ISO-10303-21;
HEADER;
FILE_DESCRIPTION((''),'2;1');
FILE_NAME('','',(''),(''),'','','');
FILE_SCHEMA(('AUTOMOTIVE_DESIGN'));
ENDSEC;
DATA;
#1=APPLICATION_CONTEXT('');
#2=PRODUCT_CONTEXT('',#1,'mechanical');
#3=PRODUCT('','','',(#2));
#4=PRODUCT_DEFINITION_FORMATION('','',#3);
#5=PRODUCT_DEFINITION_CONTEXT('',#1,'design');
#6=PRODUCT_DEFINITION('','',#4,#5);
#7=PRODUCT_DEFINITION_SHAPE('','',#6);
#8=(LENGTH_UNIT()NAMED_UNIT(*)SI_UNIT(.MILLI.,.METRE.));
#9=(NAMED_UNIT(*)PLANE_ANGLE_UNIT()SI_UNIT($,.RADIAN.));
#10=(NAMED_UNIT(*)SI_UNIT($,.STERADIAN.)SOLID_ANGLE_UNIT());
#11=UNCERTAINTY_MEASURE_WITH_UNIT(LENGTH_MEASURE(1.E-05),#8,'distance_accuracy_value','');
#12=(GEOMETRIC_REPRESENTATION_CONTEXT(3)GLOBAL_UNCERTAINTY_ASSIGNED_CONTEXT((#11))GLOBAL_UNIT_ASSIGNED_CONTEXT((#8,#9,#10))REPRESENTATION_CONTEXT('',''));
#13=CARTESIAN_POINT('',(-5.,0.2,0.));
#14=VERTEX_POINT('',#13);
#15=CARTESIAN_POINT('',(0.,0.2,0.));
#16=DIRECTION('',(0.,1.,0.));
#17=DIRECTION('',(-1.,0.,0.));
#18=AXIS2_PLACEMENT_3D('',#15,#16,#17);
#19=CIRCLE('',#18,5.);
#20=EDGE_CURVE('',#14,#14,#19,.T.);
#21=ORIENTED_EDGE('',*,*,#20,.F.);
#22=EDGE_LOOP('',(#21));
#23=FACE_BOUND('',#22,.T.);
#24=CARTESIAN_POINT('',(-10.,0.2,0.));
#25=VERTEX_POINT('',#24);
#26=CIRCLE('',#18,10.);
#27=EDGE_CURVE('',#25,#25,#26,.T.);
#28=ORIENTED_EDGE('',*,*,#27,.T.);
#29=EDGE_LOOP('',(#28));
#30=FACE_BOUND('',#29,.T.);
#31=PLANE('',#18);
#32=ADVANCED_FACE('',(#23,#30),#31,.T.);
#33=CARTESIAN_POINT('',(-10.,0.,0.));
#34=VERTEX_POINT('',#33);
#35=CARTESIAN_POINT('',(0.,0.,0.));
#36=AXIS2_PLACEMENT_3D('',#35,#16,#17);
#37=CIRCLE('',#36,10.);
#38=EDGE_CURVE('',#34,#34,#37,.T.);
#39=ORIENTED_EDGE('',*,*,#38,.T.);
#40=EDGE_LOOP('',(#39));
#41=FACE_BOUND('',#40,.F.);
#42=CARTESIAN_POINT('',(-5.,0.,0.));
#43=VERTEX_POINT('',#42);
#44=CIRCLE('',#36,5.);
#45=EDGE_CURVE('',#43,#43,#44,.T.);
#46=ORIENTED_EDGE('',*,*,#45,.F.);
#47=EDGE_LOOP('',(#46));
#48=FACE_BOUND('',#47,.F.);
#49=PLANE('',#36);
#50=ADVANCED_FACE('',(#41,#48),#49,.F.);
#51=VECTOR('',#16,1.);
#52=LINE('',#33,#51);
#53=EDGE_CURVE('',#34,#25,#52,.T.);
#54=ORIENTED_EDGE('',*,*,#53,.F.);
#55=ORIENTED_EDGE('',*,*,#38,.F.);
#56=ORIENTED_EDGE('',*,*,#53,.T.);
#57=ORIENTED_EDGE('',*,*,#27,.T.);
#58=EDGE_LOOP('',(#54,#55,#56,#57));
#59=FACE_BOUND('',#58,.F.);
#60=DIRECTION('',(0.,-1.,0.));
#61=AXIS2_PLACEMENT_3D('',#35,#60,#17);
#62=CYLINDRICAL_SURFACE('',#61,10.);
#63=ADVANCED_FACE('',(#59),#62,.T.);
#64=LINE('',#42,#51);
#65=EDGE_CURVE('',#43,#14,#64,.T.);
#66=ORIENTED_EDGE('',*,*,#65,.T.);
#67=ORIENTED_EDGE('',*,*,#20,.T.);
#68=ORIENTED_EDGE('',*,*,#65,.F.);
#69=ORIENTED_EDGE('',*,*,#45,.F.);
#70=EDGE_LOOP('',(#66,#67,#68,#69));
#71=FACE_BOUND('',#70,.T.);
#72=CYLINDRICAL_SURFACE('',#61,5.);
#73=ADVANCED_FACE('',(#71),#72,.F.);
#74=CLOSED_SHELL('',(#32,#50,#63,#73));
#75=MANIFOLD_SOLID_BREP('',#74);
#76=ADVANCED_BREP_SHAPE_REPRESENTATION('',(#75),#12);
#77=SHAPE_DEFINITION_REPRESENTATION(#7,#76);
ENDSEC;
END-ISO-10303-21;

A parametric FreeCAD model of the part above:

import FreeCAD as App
import Part
import Sketcher

doc = App.newDocument("Part")
body = doc.addObject("PartDesign::Body", "Body")

sketch1 = doc.addObject("Sketcher::SketchObject", "Sketch")
body.addObject(sketch1)
sketch1.AttachmentSupport = (doc.XZ_Plane, [""])
sketch1.MapMode = "FlatFace"
sketch1.addGeometry(Part.Circle(App.Vector(0, 0, 0), App.Vector(0, 0, 1), 10), False)
sketch1.addGeometry(Part.Circle(App.Vector(0, 0, 0), App.Vector(0, 0, 1), 5), False)
sketch1.addConstraint(Sketcher.Constraint("Coincident", 0, 3, -1, 1))
sketch1.addConstraint(Sketcher.Constraint("Coincident", 1, 3, -1, 1))
sketch1.addConstraint(Sketcher.Constraint("Diameter", 0, 20.0))
sketch1.addConstraint(Sketcher.Constraint("Diameter", 1, 10.0))
pad1 = doc.addObject("PartDesign::Pad", "Pad")
body.addObject(pad1)
pad1.Profile = sketch1
pad1.Length = 0.2
pad1.Reversed = True

doc.recompute()
